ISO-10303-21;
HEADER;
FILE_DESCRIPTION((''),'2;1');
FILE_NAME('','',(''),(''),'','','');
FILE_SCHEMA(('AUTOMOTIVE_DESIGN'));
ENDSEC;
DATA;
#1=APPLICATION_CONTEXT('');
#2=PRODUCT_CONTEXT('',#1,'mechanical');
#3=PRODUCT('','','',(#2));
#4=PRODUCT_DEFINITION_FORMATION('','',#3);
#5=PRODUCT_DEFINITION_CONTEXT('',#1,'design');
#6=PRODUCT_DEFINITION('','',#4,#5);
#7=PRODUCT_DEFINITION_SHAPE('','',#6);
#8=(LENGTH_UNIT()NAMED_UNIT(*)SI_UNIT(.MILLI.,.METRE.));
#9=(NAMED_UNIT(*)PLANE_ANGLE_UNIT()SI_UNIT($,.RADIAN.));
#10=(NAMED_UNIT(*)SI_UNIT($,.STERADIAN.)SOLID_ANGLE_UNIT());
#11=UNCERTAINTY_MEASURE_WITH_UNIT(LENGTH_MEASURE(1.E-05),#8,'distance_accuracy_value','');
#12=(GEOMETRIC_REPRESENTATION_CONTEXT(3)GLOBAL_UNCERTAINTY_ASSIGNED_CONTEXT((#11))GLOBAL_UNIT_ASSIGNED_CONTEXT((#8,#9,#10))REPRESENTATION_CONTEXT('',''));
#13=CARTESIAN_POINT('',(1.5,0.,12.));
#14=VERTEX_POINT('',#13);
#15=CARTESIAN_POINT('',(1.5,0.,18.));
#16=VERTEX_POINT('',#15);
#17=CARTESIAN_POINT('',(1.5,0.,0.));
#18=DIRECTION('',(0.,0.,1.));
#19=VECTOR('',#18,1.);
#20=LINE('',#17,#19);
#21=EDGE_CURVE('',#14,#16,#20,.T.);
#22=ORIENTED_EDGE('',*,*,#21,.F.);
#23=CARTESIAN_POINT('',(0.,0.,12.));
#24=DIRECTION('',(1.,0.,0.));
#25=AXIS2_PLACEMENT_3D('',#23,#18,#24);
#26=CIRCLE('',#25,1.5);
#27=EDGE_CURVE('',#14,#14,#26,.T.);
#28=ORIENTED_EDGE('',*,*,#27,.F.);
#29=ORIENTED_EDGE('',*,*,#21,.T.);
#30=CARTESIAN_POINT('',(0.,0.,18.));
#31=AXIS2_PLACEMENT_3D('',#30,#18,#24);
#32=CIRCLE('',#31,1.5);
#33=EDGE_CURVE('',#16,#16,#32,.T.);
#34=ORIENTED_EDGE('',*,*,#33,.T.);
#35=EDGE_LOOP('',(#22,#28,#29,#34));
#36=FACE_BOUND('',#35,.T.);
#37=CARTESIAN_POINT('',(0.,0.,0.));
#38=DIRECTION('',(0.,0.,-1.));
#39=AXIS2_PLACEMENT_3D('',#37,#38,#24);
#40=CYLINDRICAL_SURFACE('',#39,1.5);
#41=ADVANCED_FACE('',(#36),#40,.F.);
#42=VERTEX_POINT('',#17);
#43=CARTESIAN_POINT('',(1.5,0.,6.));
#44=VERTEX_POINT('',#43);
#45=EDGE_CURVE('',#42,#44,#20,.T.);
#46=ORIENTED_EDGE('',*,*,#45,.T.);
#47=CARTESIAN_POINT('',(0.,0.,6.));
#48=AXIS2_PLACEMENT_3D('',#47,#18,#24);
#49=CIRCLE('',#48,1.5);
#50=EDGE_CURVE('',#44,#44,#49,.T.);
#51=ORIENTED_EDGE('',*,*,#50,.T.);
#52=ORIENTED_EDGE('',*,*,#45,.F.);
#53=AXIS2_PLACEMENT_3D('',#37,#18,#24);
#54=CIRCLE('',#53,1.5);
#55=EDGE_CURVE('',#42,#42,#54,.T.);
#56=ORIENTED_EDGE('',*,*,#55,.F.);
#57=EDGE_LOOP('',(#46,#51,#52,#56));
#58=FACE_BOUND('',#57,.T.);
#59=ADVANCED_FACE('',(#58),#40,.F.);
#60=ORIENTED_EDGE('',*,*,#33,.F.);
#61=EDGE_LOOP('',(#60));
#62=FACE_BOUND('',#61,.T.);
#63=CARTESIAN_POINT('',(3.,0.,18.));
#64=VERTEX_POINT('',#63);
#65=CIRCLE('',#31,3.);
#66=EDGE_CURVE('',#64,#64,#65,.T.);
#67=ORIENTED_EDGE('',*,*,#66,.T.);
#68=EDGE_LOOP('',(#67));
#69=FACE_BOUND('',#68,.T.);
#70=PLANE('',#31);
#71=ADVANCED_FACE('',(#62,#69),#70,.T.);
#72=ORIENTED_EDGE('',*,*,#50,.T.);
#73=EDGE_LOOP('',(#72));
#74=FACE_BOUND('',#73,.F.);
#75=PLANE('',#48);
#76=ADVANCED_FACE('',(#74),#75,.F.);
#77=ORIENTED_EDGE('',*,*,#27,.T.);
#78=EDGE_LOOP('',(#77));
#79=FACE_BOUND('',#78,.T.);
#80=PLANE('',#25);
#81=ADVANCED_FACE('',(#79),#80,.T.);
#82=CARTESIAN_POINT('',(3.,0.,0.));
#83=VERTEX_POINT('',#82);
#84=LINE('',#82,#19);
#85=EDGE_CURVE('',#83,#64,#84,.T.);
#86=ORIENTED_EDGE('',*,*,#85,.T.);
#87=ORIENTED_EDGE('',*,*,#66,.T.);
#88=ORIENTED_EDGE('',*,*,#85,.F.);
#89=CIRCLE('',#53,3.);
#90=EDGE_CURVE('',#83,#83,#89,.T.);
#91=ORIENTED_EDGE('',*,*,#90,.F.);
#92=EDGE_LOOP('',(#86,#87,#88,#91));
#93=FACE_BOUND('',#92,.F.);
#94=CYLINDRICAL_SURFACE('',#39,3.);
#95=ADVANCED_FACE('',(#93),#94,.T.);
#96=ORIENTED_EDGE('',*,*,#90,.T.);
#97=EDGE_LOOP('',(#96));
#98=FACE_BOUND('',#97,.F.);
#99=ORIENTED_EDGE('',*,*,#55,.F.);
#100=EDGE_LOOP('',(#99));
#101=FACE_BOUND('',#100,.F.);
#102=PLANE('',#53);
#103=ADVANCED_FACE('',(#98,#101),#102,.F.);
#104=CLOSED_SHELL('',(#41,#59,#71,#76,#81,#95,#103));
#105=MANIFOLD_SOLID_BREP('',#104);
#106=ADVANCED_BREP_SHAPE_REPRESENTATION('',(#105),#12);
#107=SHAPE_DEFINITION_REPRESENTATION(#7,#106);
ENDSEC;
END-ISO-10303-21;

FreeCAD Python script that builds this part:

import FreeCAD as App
import Part
import Sketcher
Q = App.Units.Quantity

doc = App.newDocument("Part")
body = doc.addObject("PartDesign::Body", "Body")

# Sketch on XY plane
sketch1 = body.newObject("Sketcher::SketchObject", "Sketch")
sketch1.AttachmentSupport = (doc.getObject("XY_Plane"), [""])
sketch1.MapMode = "FlatFace"
sketch1.addGeometry(Part.Circle(App.Vector(0, 0, 0), App.Vector(0, 0, 1), 3), False)
sketch1.addGeometry(Part.Circle(App.Vector(0, 0, 0), App.Vector(0, 0, 1), 1.5), False)
sketch1.addConstraint(Sketcher.Constraint("Coincident", 0, 3, -1, 1))
sketch1.addConstraint(Sketcher.Constraint("Coincident", 1, 3, -1, 1))
sketch1.addConstraint(Sketcher.Constraint("Diameter", 0, Q("6 mm")))
sketch1.addConstraint(Sketcher.Constraint("Diameter", 1, Q("3 mm")))
pad1 = body.newObject("PartDesign::Pad", "Pad")
pad1.Profile = sketch1
pad1.Length = 18

# Sketch on XY plane
sketch2 = body.newObject("Sketcher::SketchObject", "Sketch001")
sketch2.AttachmentSupport = (doc.getObject("XY_Plane"), [""])
sketch2.MapMode = "FlatFace"
sketch2.AttachmentOffset = App.Placement(App.Vector(0, 0, 12), App.Rotation())
sketch2.addGeometry(Part.Circle(App.Vector(0, 0, 0), App.Vector(0, 0, 1), 1.5), False)
sketch2.addConstraint(Sketcher.Constraint("Coincident", 0, 3, -1, 1))
sketch2.addConstraint(Sketcher.Constraint("Diameter", 0, Q("3 mm")))
pad2 = body.newObject("PartDesign::Pad", "Pad001")
pad2.Profile = sketch2
pad2.Length = 6
pad2.Reversed = True

doc.recompute()
